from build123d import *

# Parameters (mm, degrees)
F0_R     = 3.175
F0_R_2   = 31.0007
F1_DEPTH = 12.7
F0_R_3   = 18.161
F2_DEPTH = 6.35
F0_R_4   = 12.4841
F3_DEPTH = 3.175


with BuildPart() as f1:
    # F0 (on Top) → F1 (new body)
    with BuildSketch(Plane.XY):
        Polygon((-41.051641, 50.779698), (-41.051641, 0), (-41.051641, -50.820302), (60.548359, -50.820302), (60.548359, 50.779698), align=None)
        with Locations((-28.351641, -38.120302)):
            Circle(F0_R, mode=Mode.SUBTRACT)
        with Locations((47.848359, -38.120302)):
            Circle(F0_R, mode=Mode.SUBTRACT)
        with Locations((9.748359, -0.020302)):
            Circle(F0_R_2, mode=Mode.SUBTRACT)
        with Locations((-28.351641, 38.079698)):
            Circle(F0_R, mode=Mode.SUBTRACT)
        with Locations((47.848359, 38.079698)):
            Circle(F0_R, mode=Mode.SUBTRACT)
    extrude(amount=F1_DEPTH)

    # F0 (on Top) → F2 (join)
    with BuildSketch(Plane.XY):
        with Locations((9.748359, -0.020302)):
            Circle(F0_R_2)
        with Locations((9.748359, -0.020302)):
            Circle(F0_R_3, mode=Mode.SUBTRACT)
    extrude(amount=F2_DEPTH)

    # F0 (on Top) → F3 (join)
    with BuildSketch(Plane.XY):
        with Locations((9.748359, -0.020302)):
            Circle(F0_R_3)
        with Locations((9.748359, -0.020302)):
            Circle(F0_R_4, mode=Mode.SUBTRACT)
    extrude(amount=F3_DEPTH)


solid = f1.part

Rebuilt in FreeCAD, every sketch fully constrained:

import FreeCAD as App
import Part
import Sketcher
from FreeCAD import Vector
Q = App.Units.Quantity


def add_polygon(sketch, points):
    """Adds a closed chain of lines whose ends are joined by coincident constraints."""
    first, n = sketch.GeometryCount, len(points)
    for a, b in zip(points, points[1:] + points[:1]):
        sketch.addGeometry(Part.LineSegment(App.Vector(*a, 0), App.Vector(*b, 0)), False)
    for i in range(n):
        sketch.addConstraint(Sketcher.Constraint("Coincident", first + i, 2, first + (i + 1) % n, 1))

doc = App.newDocument("Part")
body = doc.addObject("PartDesign::Body", "Body")

sketch1 = body.newObject("Sketcher::SketchObject", "Sketch")
sketch1.AttachmentSupport = (doc.getObject("XY_Plane"), [""])
sketch1.MapMode = "FlatFace"
add_polygon(sketch1, [(-41.1, 50.8), (-41.1, -50.8), (60.5, -50.8), (60.5, 50.8)])
sketch1.addGeometry(Part.Circle(Vector(-28.4, -38.1, 0), Vector(0, 0, 1), 3.2), False)
sketch1.addGeometry(Part.Circle(Vector(47.8, -38.1, 0), Vector(0, 0, 1), 3.2), False)
sketch1.addGeometry(Part.Circle(Vector(-28.4, 38.1, 0), Vector(0, 0, 1), 3.2), False)
sketch1.addGeometry(Part.Circle(Vector(9.7, 0, 0), Vector(0, 0, 1), 31), False)
sketch1.addGeometry(Part.Circle(Vector(47.8, 38.1, 0), Vector(0, 0, 1), 3.2), False)
sketch1.addConstraint(Sketcher.Constraint("Vertical", 0))
sketch1.addConstraint(Sketcher.Constraint("Horizontal", 1))
sketch1.addConstraint(Sketcher.Constraint("Vertical", 2))
sketch1.addConstraint(Sketcher.Constraint("Horizontal", 3))
sketch1.addConstraint(Sketcher.Constraint("Equal", 4, 5))
sketch1.addConstraint(Sketcher.Constraint("Equal", 5, 6))
sketch1.addConstraint(Sketcher.Constraint("Equal", 6, 8))
sketch1.addConstraint(Sketcher.Constraint("Horizontal", 4, 3, 5, 3))
sketch1.addConstraint(Sketcher.Constraint("Horizontal", 6, 3, 8, 3))
sketch1.addConstraint(Sketcher.Constraint("Vertical", 4, 3, 6, 3))
sketch1.addConstraint(Sketcher.Constraint("Vertical", 5, 3, 8, 3))
sketch1.addConstraint(Sketcher.Constraint("Equal", 3, 0))
sketch1.addConstraint(Sketcher.Constraint("Diameter", 4, Q("0.25 in")))
sketch1.addConstraint(Sketcher.Constraint("DistanceX", 1, 1, 1, 2, Q("4 in")))
sketch1.addConstraint(Sketcher.Constraint("Diameter", 7, Q("2.441 in")))
sketch1.addConstraint(Sketcher.Constraint("DistanceX", 4, 3, 5, 3, Q("3 in")))
sketch1.addConstraint(Sketcher.Constraint("DistanceY", 4, 3, 6, 3, Q("3 in")))
sketch1.addConstraint(Sketcher.Constraint("DistanceX", 0, 2, 7, 3, Q("2 in")))
sketch1.addConstraint(Sketcher.Constraint("DistanceY", 0, 2, 7, 3, Q("2 in")))
sketch1.addConstraint(Sketcher.Constraint("DistanceX", 4, 3, 7, 3, Q("1.5 in")))
sketch1.addConstraint(Sketcher.Constraint("DistanceY", 4, 3, 7, 3, Q("1.5 in")))
sketch1.addConstraint(Sketcher.Constraint("DistanceY", 0, 2, -1, 1, 50.820302))
sketch1.addConstraint(Sketcher.Constraint("DistanceX", 4, 3, -1, 1, 28.351641))
pad1 = body.newObject("PartDesign::Pad", "Pad")
pad1.Profile = sketch1
pad1.Length = Q("0.5 in")

sketch2 = body.newObject("Sketcher::SketchObject", "Sketch001")
sketch2.AttachmentSupport = (doc.getObject("XY_Plane"), [""])
sketch2.MapMode = "FlatFace"
sketch2.addGeometry(Part.Circle(Vector(10, 0, 0), Vector(0, 0, 1), 31), False)
sketch2.addGeometry(Part.Circle(Vector(10, 0, 0), Vector(0, 0, 1), 18), False)
sketch2.addConstraint(Sketcher.Constraint("Coincident", 1, 3, 0, 3))
sketch2.addConstraint(Sketcher.Constraint("Diameter", 1, Q("1.43 in")))
sketch2.addConstraint(Sketcher.Constraint("Diameter", 0, Q("2.441 in")))
sketch2.addConstraint(Sketcher.Constraint("DistanceX", -1, 1, 0, 3, 9.748359))
sketch2.addConstraint(Sketcher.Constraint("DistanceY", 0, 3, -1, 1, 0.020302))
pad2 = body.newObject("PartDesign::Pad", "Pad001")
pad2.Profile = sketch2
pad2.Length = Q("0.25 in")

sketch3 = body.newObject("Sketcher::SketchObject", "Sketch002")
sketch3.AttachmentSupport = (doc.getObject("XY_Plane"), [""])
sketch3.MapMode = "FlatFace"
sketch3.addGeometry(Part.Circle(Vector(10, 0, 0), Vector(0, 0, 1), 18), False)
sketch3.addGeometry(Part.Circle(Vector(10, 0, 0), Vector(0, 0, 1), 12), False)
sketch3.addConstraint(Sketcher.Constraint("Coincident", 1, 3, 0, 3))
sketch3.addConstraint(Sketcher.Constraint("Diameter", 0, Q("1.43 in")))
sketch3.addConstraint(Sketcher.Constraint("Diameter", 1, Q("0.983 in")))
sketch3.addConstraint(Sketcher.Constraint("DistanceX", -1, 1, 0, 3, 9.748359))
sketch3.addConstraint(Sketcher.Constraint("DistanceY", 0, 3, -1, 1, 0.020302))
pad3 = body.newObject("PartDesign::Pad", "Pad002")
pad3.Profile = sketch3
pad3.Length = Q("0.125 in")

doc.recompute()
